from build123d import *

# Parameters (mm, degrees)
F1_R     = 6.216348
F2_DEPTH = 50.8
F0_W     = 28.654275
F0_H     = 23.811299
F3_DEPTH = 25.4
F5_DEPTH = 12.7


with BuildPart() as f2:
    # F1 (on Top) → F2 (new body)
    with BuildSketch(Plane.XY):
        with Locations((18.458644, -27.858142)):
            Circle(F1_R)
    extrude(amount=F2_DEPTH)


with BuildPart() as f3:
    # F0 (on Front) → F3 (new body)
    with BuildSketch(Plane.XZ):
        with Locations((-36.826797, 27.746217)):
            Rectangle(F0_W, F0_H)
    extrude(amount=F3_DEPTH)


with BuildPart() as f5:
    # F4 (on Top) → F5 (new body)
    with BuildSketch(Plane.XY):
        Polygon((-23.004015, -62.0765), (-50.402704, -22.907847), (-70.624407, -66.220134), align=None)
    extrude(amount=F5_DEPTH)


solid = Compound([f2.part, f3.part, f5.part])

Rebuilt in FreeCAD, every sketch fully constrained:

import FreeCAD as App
import Part
import Sketcher
from FreeCAD import Vector
Q = App.Units.Quantity

doc = App.newDocument("Part")
body = doc.addObject("PartDesign::Body", "Body")

sketch1 = doc.addObject("Sketcher::SketchObject", "Sketch")
body.addObject(sketch1)
sketch1.AttachmentSupport = (doc.XY_Plane, [""])
sketch1.MapMode = "FlatFace"
sketch1.addGeometry(Part.Circle(Vector(18, -28, 0), Vector(0, 0, 1), 6), False)
sketch1.addConstraint([
    Sketcher.Constraint("Diameter", 0, Q("12.432696 mm")),
    Sketcher.Constraint("DistanceX", -1, 1, 0, 3, Q("18.458644 mm")),
    Sketcher.Constraint("DistanceY", 0, 3, -1, 1, Q("27.858142 mm")),
])
pad1 = doc.addObject("PartDesign::Pad", "Pad")
body.addObject(pad1)
pad1.Profile = sketch1
pad1.Length = Q("2 in")
body2 = doc.addObject("PartDesign::Body", "Body001")

sketch2 = doc.addObject("Sketcher::SketchObject", "Sketch001")
body2.addObject(sketch2)
sketch2.AttachmentSupport = (doc.getObject("XZ_Plane001"), [""])
sketch2.MapMode = "FlatFace"
sketch2.addGeometry([
    Part.LineSegment(Vector(-51, 40, 0), Vector(-51, 16, 0)),
    Part.LineSegment(Vector(-51, 16, 0), Vector(-22, 16, 0)),
    Part.LineSegment(Vector(-22, 16, 0), Vector(-22, 40, 0)),
    Part.LineSegment(Vector(-22, 40, 0), Vector(-51, 40, 0)),
], False)
sketch2.addConstraint([
    Sketcher.Constraint("Coincident", 0, 2, 1, 1),
    Sketcher.Constraint("Coincident", 1, 2, 2, 1),
    Sketcher.Constraint("Coincident", 2, 2, 3, 1),
    Sketcher.Constraint("Coincident", 3, 2, 0, 1),
    Sketcher.Constraint("Vertical", 0),
    Sketcher.Constraint("Horizontal", 1),
    Sketcher.Constraint("Vertical", 2),
    Sketcher.Constraint("Horizontal", 3),
    Sketcher.Constraint("DistanceY", 0, 2, 0, 1, Q("23.811299 mm")),
    Sketcher.Constraint("DistanceX", 1, 1, 1, 2, Q("28.654275 mm")),
    Sketcher.Constraint("DistanceX", 1, 2, -1, 1, Q("22.499659 mm")),
    Sketcher.Constraint("DistanceY", -1, 1, 0, 2, Q("15.840568 mm")),
])
pad2 = doc.addObject("PartDesign::Pad", "Pad001")
body2.addObject(pad2)
pad2.Profile = sketch2
pad2.Length = Q("1 in")
body3 = doc.addObject("PartDesign::Body", "Body002")

sketch3 = doc.addObject("Sketcher::SketchObject", "Sketch002")
body3.addObject(sketch3)
sketch3.AttachmentSupport = (doc.getObject("XY_Plane002"), [""])
sketch3.MapMode = "FlatFace"
sketch3.addGeometry([
    Part.LineSegment(Vector(-23, -62, 0), Vector(-50, -23, 0)),
    Part.LineSegment(Vector(-50, -23, 0), Vector(-71, -66, 0)),
    Part.LineSegment(Vector(-71, -66, 0), Vector(-23, -62, 0)),
], False)
sketch3.addConstraint([
    Sketcher.Constraint("Coincident", 0, 2, 1, 1),
    Sketcher.Constraint("Coincident", 1, 2, 2, 1),
    Sketcher.Constraint("Coincident", 2, 2, 0, 1),
    Sketcher.Constraint("Equal", 0, 1),
    Sketcher.Constraint("Equal", 1, 2),
    Sketcher.Constraint("DistanceY", 2, 2, -1, 1, Q("62.0765 mm")),
    Sketcher.Constraint("Distance", 0, Q("47.80033 mm")),
    Sketcher.Constraint("DistanceX", 0, 2, 2, 2, Q("27.398689 mm")),
    Sketcher.Constraint("DistanceX", 0, 2, -1, 1, Q("50.402704 mm")),
])
pad3 = doc.addObject("PartDesign::Pad", "Pad002")
body3.addObject(pad3)
pad3.Profile = sketch3
pad3.Length = Q("0.5 in")

doc.recompute()
